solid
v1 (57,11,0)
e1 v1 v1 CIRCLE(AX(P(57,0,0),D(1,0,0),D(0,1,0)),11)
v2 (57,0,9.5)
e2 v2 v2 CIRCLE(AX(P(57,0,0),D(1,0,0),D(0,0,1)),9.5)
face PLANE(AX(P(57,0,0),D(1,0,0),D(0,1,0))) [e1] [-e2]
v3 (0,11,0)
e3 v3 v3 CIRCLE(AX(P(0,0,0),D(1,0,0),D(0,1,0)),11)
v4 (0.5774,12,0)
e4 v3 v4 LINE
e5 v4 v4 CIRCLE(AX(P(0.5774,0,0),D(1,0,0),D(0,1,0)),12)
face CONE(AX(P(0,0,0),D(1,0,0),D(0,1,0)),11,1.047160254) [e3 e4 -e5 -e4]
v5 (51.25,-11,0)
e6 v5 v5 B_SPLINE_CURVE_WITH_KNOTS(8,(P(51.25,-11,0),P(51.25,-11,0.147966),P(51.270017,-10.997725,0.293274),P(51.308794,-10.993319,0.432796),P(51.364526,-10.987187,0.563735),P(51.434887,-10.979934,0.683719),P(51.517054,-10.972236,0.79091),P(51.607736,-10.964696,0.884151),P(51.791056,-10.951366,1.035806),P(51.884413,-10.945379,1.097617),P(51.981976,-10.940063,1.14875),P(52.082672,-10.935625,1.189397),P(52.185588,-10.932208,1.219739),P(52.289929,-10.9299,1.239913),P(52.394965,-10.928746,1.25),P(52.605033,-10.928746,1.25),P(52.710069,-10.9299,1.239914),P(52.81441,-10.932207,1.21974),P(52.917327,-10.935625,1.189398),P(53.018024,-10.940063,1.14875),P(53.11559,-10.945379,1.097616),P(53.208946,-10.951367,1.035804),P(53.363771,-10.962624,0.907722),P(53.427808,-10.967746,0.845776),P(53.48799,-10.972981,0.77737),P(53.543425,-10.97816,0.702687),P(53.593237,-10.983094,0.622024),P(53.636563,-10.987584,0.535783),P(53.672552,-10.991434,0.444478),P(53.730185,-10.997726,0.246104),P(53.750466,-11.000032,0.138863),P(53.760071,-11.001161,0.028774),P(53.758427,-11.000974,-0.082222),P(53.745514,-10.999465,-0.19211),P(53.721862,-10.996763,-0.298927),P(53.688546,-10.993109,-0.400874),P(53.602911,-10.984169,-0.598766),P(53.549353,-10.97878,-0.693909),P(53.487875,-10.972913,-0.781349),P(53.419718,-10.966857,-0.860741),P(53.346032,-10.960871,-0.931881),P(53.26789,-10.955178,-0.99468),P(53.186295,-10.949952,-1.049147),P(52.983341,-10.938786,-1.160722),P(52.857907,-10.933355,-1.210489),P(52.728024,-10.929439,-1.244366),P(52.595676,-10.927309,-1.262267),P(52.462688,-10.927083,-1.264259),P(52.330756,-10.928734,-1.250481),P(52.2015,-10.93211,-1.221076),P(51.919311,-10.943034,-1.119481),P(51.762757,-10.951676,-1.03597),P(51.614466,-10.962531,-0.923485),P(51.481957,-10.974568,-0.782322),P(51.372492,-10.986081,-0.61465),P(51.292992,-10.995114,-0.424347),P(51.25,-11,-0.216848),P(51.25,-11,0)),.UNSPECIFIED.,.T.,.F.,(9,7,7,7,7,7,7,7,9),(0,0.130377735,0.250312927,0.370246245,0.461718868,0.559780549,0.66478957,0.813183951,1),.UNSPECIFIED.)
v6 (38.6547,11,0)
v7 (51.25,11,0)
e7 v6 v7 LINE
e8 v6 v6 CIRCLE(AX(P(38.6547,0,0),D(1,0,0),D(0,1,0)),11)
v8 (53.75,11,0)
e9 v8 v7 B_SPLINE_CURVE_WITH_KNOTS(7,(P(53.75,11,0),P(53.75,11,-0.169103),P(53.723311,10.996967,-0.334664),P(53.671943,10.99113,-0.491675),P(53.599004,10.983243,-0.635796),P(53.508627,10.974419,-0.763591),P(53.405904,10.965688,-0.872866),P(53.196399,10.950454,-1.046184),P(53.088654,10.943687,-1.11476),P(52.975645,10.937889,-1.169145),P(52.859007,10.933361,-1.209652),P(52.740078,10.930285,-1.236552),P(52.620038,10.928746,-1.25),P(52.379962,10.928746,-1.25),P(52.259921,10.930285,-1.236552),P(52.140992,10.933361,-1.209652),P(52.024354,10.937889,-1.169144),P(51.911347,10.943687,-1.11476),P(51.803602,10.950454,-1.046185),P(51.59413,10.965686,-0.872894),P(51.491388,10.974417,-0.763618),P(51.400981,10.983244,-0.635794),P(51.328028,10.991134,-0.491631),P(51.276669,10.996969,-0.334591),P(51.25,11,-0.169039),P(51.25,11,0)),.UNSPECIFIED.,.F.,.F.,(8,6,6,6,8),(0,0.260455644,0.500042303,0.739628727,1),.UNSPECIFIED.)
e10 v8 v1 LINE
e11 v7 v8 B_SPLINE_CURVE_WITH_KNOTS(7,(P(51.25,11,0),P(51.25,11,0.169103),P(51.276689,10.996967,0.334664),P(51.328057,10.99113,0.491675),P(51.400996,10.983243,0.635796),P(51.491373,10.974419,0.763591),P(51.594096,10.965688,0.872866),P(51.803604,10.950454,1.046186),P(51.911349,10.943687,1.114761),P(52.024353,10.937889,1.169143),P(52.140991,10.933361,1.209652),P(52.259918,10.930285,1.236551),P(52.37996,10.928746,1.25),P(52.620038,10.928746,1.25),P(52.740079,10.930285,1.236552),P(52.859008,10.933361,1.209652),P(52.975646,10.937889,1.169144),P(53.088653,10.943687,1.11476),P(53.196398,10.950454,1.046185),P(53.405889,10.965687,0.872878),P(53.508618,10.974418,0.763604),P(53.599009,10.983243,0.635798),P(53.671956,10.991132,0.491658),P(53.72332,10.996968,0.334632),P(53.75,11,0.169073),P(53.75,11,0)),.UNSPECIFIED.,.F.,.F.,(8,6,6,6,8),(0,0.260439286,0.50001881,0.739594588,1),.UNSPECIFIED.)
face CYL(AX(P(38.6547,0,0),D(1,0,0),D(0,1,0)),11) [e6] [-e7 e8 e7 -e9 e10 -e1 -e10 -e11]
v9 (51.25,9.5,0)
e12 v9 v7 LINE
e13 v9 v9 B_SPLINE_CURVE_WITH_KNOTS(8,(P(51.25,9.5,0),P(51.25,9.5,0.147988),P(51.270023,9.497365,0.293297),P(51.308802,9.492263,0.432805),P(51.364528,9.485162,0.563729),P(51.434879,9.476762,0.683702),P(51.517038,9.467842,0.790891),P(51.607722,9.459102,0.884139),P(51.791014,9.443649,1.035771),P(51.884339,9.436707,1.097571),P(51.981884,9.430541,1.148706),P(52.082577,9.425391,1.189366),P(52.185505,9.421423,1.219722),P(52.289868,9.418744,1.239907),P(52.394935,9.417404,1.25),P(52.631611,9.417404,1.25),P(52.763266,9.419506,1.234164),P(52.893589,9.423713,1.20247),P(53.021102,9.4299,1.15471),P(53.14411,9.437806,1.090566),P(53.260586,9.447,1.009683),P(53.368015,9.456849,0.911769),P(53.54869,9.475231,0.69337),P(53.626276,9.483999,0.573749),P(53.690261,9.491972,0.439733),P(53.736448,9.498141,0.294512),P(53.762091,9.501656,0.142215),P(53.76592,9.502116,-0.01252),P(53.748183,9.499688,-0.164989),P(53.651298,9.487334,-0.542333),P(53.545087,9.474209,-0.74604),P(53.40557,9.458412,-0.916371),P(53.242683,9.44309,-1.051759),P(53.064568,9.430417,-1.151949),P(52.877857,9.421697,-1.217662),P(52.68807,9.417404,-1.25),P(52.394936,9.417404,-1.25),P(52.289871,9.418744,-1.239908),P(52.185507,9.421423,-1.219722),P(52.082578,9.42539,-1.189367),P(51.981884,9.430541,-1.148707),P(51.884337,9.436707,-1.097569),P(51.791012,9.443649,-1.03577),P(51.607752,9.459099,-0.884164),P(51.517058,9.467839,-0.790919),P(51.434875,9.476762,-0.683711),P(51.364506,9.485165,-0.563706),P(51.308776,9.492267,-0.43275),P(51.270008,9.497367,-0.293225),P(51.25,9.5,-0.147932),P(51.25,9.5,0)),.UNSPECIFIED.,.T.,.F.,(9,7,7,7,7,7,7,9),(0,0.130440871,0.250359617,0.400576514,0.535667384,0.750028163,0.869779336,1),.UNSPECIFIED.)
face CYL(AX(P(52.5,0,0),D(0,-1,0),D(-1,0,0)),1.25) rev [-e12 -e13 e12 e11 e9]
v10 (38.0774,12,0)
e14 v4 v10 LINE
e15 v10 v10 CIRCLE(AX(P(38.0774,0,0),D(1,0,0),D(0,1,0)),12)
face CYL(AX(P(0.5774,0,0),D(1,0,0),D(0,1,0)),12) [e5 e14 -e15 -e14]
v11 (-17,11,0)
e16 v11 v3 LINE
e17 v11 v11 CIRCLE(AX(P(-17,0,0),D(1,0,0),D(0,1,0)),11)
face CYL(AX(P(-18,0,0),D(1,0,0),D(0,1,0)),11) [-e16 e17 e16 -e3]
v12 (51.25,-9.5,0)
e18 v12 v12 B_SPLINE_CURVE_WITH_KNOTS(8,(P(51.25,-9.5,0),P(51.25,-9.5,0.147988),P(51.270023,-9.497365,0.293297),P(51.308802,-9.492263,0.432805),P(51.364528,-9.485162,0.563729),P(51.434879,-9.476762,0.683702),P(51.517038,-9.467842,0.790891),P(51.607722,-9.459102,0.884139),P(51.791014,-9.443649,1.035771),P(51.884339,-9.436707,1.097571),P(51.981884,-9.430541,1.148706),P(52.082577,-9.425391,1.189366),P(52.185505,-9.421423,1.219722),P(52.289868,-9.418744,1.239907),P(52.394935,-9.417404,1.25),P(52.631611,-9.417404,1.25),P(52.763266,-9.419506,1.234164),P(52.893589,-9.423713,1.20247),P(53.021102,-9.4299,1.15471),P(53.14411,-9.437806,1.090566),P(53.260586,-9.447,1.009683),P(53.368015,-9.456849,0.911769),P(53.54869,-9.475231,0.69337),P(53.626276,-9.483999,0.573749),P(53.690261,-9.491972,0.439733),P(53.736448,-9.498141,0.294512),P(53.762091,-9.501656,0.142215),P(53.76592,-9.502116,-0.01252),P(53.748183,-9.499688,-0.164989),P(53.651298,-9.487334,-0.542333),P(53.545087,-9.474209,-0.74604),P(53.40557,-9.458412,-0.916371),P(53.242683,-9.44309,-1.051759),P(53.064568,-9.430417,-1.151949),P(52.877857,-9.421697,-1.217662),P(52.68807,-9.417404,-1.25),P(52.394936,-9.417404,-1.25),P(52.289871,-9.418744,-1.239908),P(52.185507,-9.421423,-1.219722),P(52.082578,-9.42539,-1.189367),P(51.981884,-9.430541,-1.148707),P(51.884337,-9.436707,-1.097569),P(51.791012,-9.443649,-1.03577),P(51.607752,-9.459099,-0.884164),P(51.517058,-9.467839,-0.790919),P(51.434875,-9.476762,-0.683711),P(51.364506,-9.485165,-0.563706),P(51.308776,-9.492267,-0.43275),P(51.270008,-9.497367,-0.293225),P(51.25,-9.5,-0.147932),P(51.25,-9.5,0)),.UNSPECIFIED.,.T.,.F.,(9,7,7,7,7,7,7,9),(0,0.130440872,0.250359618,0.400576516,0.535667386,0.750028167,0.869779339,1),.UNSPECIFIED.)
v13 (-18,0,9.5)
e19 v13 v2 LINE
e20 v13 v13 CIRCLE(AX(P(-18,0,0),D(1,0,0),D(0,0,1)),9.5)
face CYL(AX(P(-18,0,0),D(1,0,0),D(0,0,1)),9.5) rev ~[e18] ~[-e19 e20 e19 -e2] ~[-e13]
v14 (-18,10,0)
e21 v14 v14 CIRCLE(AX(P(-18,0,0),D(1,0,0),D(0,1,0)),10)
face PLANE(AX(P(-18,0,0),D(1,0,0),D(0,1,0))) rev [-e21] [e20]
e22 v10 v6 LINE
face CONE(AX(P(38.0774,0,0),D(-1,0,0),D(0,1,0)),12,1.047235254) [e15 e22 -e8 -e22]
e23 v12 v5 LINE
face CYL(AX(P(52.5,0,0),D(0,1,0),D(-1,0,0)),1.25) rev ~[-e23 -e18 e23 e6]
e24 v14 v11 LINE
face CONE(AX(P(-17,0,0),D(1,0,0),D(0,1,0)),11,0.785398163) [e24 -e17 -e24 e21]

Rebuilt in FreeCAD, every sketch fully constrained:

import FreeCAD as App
import Part
import Sketcher
from FreeCAD import Vector
Q = App.Units.Quantity


def edges_at(feature, points):
    """Names of the edges that pass closest to the given points."""
    edges = feature.Shape.Edges
    near = lambda p: min(range(len(edges)), key=lambda i: edges[i].distToShape(Part.Vertex(*p))[0])
    return sorted({f"Edge{near(p) + 1}" for p in points})


def add_polygon(sketch, points):
    """Adds a closed chain of lines whose ends are joined by coincident constraints."""
    first, n = sketch.GeometryCount, len(points)
    for a, b in zip(points, points[1:] + points[:1]):
        sketch.addGeometry(Part.LineSegment(App.Vector(*a, 0), App.Vector(*b, 0)), False)
    for i in range(n):
        sketch.addConstraint(Sketcher.Constraint("Coincident", first + i, 2, first + (i + 1) % n, 1))

doc = App.newDocument("Part")
body = doc.addObject("PartDesign::Body", "Body")

sketch1 = doc.addObject("Sketcher::SketchObject", "Sketch")
body.addObject(sketch1)
sketch1.AttachmentSupport = (doc.XY_Plane, [""])
sketch1.MapMode = "FlatFace"
add_polygon(sketch1, [(-18, 11), (-18, 0), (0, 0), (0, 9), (49, 9), (49, 0), (57, 0), (57, 11), (38.7, 11), (38.1, 12), (0.6, 12), (0, 11)])
sketch1.addConstraint(Sketcher.Constraint("Vertical", 0))
sketch1.addConstraint(Sketcher.Constraint("Horizontal", 1))
sketch1.addConstraint(Sketcher.Constraint("Vertical", 2))
sketch1.addConstraint(Sketcher.Constraint("Horizontal", 3))
sketch1.addConstraint(Sketcher.Constraint("Vertical", 4))
sketch1.addConstraint(Sketcher.Constraint("Horizontal", 5))
sketch1.addConstraint(Sketcher.Constraint("Vertical", 6))
sketch1.addConstraint(Sketcher.Constraint("Horizontal", 7))
sketch1.addConstraint(Sketcher.Constraint("Horizontal", 9))
sketch1.addConstraint(Sketcher.Constraint("Horizontal", 11))
sketch1.addConstraint(Sketcher.Constraint("Coincident", 1, 2, -1, 1))
sketch1.addConstraint(Sketcher.Constraint("PointOnObject", 4, 2, -1))
sketch1.addConstraint(Sketcher.Constraint("PointOnObject", 10, 2, -2))
sketch1.addConstraint(Sketcher.Constraint("Horizontal", 7, 2, 10, 2))
sketch1.addConstraint(Sketcher.Constraint("Equal", 8, 10))
sketch1.addConstraint(Sketcher.Constraint("DistanceX", 1, 1, 1, 2, Q("18 mm")))
sketch1.addConstraint(Sketcher.Constraint("DistanceX", 5, 1, 5, 2, Q("8 mm")))
sketch1.addConstraint(Sketcher.Constraint("DistanceY", 0, 2, 0, 1, Q("11 mm")))
sketch1.addConstraint(Sketcher.Constraint("DistanceY", 2, 1, 2, 2, Q("9 mm")))
sketch1.addConstraint(Sketcher.Constraint("DistanceX", 9, 2, 9, 1, Q("37.5 mm")))
sketch1.addConstraint(Sketcher.Constraint("DistanceX", 0, 2, 5, 2, Q("75 mm")))
sketch1.addConstraint(Sketcher.Constraint("DistanceY", 7, 2, 8, 2, Q("1 mm")))
sketch1.addConstraint(Sketcher.Constraint("DistanceX", 7, 2, 7, 1, Q("18.3453 mm")))
revolution = doc.addObject("PartDesign::Revolution", "Revolution")
body.addObject(revolution)
revolution.Profile = sketch1
revolution.ReferenceAxis = (sketch1, ["H_Axis"])
revolution.Angle = 360

sketch2 = doc.addObject("Sketcher::SketchObject", "Sketch001")
body.addObject(sketch2)
sketch2.AttachmentSupport = (doc.YZ_Plane, [""])
sketch2.MapMode = "FlatFace"
sketch2.AttachmentOffset = App.Placement(Vector(0, 0, -18), App.Rotation())
sketch2.addGeometry(Part.Circle(Vector(0, 0, 0), Vector(0, 0, 1), 10), False)
sketch2.addConstraint(Sketcher.Constraint("Coincident", 0, 3, -1, 1))
sketch2.addConstraint(Sketcher.Constraint("Diameter", 0, Q("19 mm")))
doc.recompute()
hole = doc.addObject("PartDesign::Hole", "Hole")
body.addObject(hole)
hole.Profile = sketch2
hole.ThreadType = "None"
hole.Diameter = 19
hole.DepthType = "ThroughAll"
hole.Reversed = True
doc.recompute()

chamfer = doc.addObject("PartDesign::Chamfer", "Chamfer")
body.addObject(chamfer)
chamfer.Base = (hole, edges_at(hole, [(-18, -11, 0)]))
chamfer.Size = 1

sketch3 = doc.addObject("Sketcher::SketchObject", "Sketch002")
body.addObject(sketch3)
sketch3.AttachmentSupport = (doc.XZ_Plane, [""])
sketch3.MapMode = "FlatFace"
sketch3.addGeometry(Part.Circle(Vector(52.5, 0, 0), Vector(0, 0, 1), 1.2), False)
sketch3.addConstraint(Sketcher.Constraint("PointOnObject", 0, 3, -1))
sketch3.addConstraint(Sketcher.Constraint("Diameter", 0, Q("2.5 mm")))
sketch3.addConstraint(Sketcher.Constraint("DistanceX", -1, 1, 0, 3, Q("52.5 mm")))
pocket1 = doc.addObject("PartDesign::Pocket", "Pocket")
body.addObject(pocket1)
pocket1.Profile = sketch3
pocket1.Type = "ThroughAll"
pocket1.Midplane = True

doc.recompute()
